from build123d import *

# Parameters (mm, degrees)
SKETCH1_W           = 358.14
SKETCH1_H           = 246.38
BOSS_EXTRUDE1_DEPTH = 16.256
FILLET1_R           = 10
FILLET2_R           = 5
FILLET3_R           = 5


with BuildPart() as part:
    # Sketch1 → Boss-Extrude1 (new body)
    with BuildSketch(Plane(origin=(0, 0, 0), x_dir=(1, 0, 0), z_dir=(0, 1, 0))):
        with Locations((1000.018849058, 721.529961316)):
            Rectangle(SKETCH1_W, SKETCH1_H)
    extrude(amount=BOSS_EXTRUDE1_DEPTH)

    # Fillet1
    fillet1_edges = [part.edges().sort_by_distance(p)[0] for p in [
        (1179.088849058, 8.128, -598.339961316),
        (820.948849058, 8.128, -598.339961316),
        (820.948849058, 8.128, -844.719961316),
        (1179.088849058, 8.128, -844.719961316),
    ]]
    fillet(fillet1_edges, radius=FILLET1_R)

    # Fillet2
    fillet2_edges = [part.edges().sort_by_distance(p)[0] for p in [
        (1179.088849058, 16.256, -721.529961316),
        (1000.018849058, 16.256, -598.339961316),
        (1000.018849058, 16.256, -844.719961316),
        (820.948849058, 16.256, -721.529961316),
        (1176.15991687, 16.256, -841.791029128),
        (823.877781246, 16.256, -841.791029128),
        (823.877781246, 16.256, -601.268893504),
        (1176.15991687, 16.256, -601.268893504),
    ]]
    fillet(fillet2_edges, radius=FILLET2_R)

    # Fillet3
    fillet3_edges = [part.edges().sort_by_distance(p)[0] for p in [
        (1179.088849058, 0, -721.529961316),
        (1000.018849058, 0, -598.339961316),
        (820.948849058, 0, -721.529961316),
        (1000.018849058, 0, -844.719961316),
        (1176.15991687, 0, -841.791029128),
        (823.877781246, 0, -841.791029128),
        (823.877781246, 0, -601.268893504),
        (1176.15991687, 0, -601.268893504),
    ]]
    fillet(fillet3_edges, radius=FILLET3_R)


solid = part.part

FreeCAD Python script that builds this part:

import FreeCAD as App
import Part
import Sketcher
Q = App.Units.Quantity


def edges_at(feature, points):
    """Names of the edges that pass closest to the given points."""
    edges = feature.Shape.Edges
    near = lambda p: min(range(len(edges)), key=lambda i: edges[i].distToShape(Part.Vertex(*p))[0])
    return sorted({f"Edge{near(p) + 1}" for p in points})

doc = App.newDocument("Part")
body = doc.addObject("PartDesign::Body", "Body")

# Sketch on XZ plane
sketch1 = body.newObject("Sketcher::SketchObject", "Sketch")
sketch1.AttachmentSupport = (doc.getObject("XZ_Plane"), [""])
sketch1.MapMode = "FlatFace"
sketch1.addGeometry([
    Part.LineSegment(App.Vector(821, -845, 0), App.Vector(821, -598, 0)),
    Part.LineSegment(App.Vector(821, -598, 0), App.Vector(1179, -598, 0)),
    Part.LineSegment(App.Vector(1179, -598, 0), App.Vector(1179, -845, 0)),
    Part.LineSegment(App.Vector(1179, -845, 0), App.Vector(821, -845, 0)),
], False)
sketch1.addConstraint([
    Sketcher.Constraint("Coincident", 0, 2, 1, 1),
    Sketcher.Constraint("Coincident", 1, 2, 2, 1),
    Sketcher.Constraint("Coincident", 2, 2, 3, 1),
    Sketcher.Constraint("Coincident", 3, 2, 0, 1),
    Sketcher.Constraint("Vertical", 0),
    Sketcher.Constraint("Horizontal", 1),
    Sketcher.Constraint("Vertical", 2),
    Sketcher.Constraint("Horizontal", 3),
    Sketcher.Constraint("DistanceX", 1, 1, 1, 2, Q("14.1 in")),
    Sketcher.Constraint("DistanceY", 0, 1, 0, 2, Q("9.7 in")),
    Sketcher.Constraint("DistanceX", -1, 1, 0, 2, Q("820.948849 mm")),
    Sketcher.Constraint("DistanceY", 0, 2, -1, 1, Q("598.339961 mm")),
])
pad1 = body.newObject("PartDesign::Pad", "Pad")
pad1.Profile = sketch1
pad1.Length = Q("0.64 in")
pad1.Reversed = True
doc.recompute()

fillet = body.newObject("PartDesign::Fillet", "Fillet")
fillet.Base = (pad1, edges_at(pad1, [
    (1179.089, 8.128, -598.34),
    (820.949, 8.128, -598.34),
    (820.949, 8.128, -844.72),
    (1179.089, 8.128, -844.72),
]))
fillet.Radius = 10
doc.recompute()

fillet2 = body.newObject("PartDesign::Fillet", "Fillet001")
fillet2.Base = (fillet, edges_at(fillet, [
    (1179.089, 16.256, -721.53),
    (1000.019, 16.256, -598.34),
    (1000.019, 16.256, -844.72),
    (820.949, 16.256, -721.53),
    (1176.16, 16.256, -841.791),
    (823.878, 16.256, -841.791),
    (823.878, 16.256, -601.269),
    (1176.16, 16.256, -601.269),
]))
fillet2.Radius = 5
doc.recompute()

fillet3 = body.newObject("PartDesign::Fillet", "Fillet002")
fillet3.Base = (fillet2, edges_at(fillet2, [
    (1179.089, 0, -721.53),
    (1000.019, 0, -598.34),
    (820.949, 0, -721.53),
    (1000.019, 0, -844.72),
    (1176.16, 0, -841.791),
    (823.878, 0, -841.791),
    (823.878, 0, -601.269),
    (1176.16, 0, -601.269),
]))
fillet3.Radius = 5

doc.recompute()
